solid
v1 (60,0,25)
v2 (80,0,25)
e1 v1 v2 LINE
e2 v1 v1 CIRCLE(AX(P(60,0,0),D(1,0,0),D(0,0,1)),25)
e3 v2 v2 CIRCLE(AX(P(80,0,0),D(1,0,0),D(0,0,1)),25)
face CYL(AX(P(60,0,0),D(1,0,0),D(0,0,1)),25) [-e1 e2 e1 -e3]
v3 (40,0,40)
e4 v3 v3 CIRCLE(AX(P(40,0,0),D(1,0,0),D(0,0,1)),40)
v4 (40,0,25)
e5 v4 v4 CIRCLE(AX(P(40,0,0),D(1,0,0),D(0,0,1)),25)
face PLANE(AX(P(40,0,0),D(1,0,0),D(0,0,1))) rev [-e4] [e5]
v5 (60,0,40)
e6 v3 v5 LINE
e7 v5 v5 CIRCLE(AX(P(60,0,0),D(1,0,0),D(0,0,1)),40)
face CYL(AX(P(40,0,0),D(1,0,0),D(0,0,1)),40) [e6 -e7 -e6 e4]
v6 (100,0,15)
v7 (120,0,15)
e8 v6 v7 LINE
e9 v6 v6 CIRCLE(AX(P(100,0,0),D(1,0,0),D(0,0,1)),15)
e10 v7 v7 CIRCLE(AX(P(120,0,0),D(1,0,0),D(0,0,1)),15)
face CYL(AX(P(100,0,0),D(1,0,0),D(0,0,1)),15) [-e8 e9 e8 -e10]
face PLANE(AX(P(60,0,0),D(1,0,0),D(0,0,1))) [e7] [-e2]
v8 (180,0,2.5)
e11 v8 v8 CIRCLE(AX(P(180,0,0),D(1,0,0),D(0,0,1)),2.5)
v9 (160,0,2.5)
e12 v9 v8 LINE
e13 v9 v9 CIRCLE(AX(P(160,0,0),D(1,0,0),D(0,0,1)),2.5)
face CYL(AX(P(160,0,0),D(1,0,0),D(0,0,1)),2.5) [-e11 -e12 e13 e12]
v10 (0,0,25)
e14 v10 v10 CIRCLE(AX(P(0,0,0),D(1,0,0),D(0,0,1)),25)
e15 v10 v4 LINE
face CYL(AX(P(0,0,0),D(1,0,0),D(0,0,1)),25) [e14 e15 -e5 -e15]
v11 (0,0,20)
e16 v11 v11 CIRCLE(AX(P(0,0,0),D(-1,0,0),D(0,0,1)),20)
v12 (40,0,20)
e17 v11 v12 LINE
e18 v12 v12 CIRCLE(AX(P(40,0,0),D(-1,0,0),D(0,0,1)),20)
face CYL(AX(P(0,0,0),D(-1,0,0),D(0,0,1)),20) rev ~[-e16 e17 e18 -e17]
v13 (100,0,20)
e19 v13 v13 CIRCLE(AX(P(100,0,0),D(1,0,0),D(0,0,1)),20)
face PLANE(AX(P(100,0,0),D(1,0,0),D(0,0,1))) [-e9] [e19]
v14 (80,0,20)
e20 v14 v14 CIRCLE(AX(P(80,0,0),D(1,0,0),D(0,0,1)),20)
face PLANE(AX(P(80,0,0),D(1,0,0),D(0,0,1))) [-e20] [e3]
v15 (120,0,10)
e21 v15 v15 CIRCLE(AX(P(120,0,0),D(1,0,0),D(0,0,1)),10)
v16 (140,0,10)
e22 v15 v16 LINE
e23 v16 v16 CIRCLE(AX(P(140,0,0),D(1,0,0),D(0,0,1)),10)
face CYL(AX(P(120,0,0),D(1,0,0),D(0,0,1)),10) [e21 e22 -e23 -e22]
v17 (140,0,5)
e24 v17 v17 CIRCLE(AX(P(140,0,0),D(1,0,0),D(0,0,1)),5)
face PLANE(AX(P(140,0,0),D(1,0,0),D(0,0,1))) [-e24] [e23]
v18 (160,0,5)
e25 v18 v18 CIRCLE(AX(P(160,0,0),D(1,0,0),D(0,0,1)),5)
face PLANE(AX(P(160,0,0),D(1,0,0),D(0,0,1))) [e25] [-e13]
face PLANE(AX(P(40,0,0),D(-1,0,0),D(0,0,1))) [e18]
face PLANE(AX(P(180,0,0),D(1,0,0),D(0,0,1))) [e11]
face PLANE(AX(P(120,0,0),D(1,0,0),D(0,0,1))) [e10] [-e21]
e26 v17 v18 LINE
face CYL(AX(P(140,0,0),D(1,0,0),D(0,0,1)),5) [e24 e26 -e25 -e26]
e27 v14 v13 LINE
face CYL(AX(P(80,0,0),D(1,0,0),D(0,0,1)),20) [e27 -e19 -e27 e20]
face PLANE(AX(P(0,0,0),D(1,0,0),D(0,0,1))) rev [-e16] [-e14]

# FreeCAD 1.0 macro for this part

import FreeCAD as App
import Part
import Sketcher
from FreeCAD import Vector

doc = App.newDocument("Part")
body = doc.addObject("PartDesign::Body", "Body")

# Sketch on XY plane
sketch1 = body.newObject("Sketcher::SketchObject", "Sketch")
sketch1.AttachmentSupport = (doc.getObject("XY_Plane"), [""])
sketch1.MapMode = "FlatFace"
sketch1.addGeometry([
    Part.LineSegment(Vector(0, 25, 0), Vector(0, 0, 0)),  # 0
    Part.LineSegment(Vector(0, 0, 0), Vector(180, 0, 0)),  # 1
    Part.LineSegment(Vector(180, 0, 0), Vector(180, 2.5, 0)),  # 2
    Part.LineSegment(Vector(180, 2.5, 0), Vector(160, 2.5, 0)),  # 3
    Part.LineSegment(Vector(160, 2.5, 0), Vector(160, 5, 0)),  # 4
    Part.LineSegment(Vector(160, 5, 0), Vector(140, 5, 0)),  # 5
    Part.LineSegment(Vector(140, 5, 0), Vector(140, 10, 0)),  # 6
    Part.LineSegment(Vector(140, 10, 0), Vector(120, 10, 0)),  # 7
    Part.LineSegment(Vector(120, 10, 0), Vector(120, 15, 0)),  # 8
    Part.LineSegment(Vector(120, 15, 0), Vector(100, 15, 0)),  # 9
    Part.LineSegment(Vector(100, 15, 0), Vector(100, 20, 0)),  # 10
    Part.LineSegment(Vector(100, 20, 0), Vector(80, 20, 0)),  # 11
    Part.LineSegment(Vector(80, 20, 0), Vector(80, 25, 0)),  # 12
    Part.LineSegment(Vector(80, 25, 0), Vector(60, 25, 0)),  # 13
    Part.LineSegment(Vector(60, 25, 0), Vector(60, 40, 0)),  # 14
    Part.LineSegment(Vector(60, 40, 0), Vector(40, 40, 0)),  # 15
    Part.LineSegment(Vector(40, 40, 0), Vector(40, 25, 0)),  # 16
    Part.LineSegment(Vector(40, 25, 0), Vector(0, 25, 0)),  # 17
], False)
sketch1.addConstraint([
    Sketcher.Constraint("Coincident", 0, 2, 1, 1),
    Sketcher.Constraint("Coincident", 1, 2, 2, 1),
    Sketcher.Constraint("Coincident", 2, 2, 3, 1),
    Sketcher.Constraint("Coincident", 3, 2, 4, 1),
    Sketcher.Constraint("Coincident", 4, 2, 5, 1),
    Sketcher.Constraint("Coincident", 5, 2, 6, 1),
    Sketcher.Constraint("Coincident", 6, 2, 7, 1),
    Sketcher.Constraint("Coincident", 7, 2, 8, 1),
    Sketcher.Constraint("Coincident", 8, 2, 9, 1),
    Sketcher.Constraint("Coincident", 9, 2, 10, 1),
    Sketcher.Constraint("Coincident", 10, 2, 11, 1),
    Sketcher.Constraint("Coincident", 11, 2, 12, 1),
    Sketcher.Constraint("Coincident", 12, 2, 13, 1),
    Sketcher.Constraint("Coincident", 13, 2, 14, 1),
    Sketcher.Constraint("Coincident", 14, 2, 15, 1),
    Sketcher.Constraint("Coincident", 15, 2, 16, 1),
    Sketcher.Constraint("Coincident", 16, 2, 17, 1),
    Sketcher.Constraint("Coincident", 17, 2, 0, 1),
    Sketcher.Constraint("Vertical", 0),
    Sketcher.Constraint("Horizontal", 1),
    Sketcher.Constraint("Vertical", 2),
    Sketcher.Constraint("Horizontal", 3),
    Sketcher.Constraint("Vertical", 4),
    Sketcher.Constraint("Horizontal", 5),
    Sketcher.Constraint("Vertical", 6),
    Sketcher.Constraint("Horizontal", 7),
    Sketcher.Constraint("Vertical", 8),
    Sketcher.Constraint("Horizontal", 9),
    Sketcher.Constraint("Vertical", 10),
    Sketcher.Constraint("Horizontal", 11),
    Sketcher.Constraint("Vertical", 12),
    Sketcher.Constraint("Horizontal", 13),
    Sketcher.Constraint("Vertical", 14),
    Sketcher.Constraint("Horizontal", 15),
    Sketcher.Constraint("Vertical", 16),
    Sketcher.Constraint("Horizontal", 17),
    Sketcher.Constraint("Coincident", 0, 2, -1, 1),
    Sketcher.Constraint("Horizontal", 13, 2, 16, 2),
    Sketcher.Constraint("Equal", 3, 5),
    Sketcher.Constraint("Equal", 5, 7),
    Sketcher.Constraint("Equal", 7, 9),
    Sketcher.Constraint("Equal", 9, 11),
    Sketcher.Constraint("Equal", 11, 13),
    Sketcher.Constraint("Equal", 13, 15),
    Sketcher.Constraint("Equal", 2, 4),
    Sketcher.Constraint("Equal", 6, 8),
    Sketcher.Constraint("Equal", 8, 10),
    Sketcher.Constraint("Equal", 10, 12),
    Sketcher.Constraint("DistanceX", 1, 1, 1, 2, 180.0),
    Sketcher.Constraint("DistanceX", 3, 2, 3, 1, 20.0),
    Sketcher.Constraint("DistanceY", 0, 2, 0, 1, 25.0),
    Sketcher.Constraint("DistanceY", 6, 1, 6, 2, 5.0),
    Sketcher.Constraint("DistanceY", 14, 1, 14, 2, 15.0),
])
revolution = body.newObject("PartDesign::Revolution", "Revolution")
revolution.Profile = sketch1
revolution.ReferenceAxis = (sketch1, ["H_Axis"])
revolution.Angle = 360

# Sketch on YZ plane
sketch2 = body.newObject("Sketcher::SketchObject", "Sketch001")
sketch2.AttachmentSupport = (doc.getObject("YZ_Plane"), [""])
sketch2.MapMode = "FlatFace"
sketch2.addGeometry(Part.Circle(Vector(0, 0, 0), Vector(0, 0, 1), 20), False)
sketch2.addConstraint([
    Sketcher.Constraint("Coincident", 0, 3, -1, 1),
    Sketcher.Constraint("Diameter", 0, 40.0),
])
pocket1 = body.newObject("PartDesign::Pocket", "Pocket")
pocket1.Profile = sketch2
pocket1.Length = 40
pocket1.Reversed = True

doc.recompute()
